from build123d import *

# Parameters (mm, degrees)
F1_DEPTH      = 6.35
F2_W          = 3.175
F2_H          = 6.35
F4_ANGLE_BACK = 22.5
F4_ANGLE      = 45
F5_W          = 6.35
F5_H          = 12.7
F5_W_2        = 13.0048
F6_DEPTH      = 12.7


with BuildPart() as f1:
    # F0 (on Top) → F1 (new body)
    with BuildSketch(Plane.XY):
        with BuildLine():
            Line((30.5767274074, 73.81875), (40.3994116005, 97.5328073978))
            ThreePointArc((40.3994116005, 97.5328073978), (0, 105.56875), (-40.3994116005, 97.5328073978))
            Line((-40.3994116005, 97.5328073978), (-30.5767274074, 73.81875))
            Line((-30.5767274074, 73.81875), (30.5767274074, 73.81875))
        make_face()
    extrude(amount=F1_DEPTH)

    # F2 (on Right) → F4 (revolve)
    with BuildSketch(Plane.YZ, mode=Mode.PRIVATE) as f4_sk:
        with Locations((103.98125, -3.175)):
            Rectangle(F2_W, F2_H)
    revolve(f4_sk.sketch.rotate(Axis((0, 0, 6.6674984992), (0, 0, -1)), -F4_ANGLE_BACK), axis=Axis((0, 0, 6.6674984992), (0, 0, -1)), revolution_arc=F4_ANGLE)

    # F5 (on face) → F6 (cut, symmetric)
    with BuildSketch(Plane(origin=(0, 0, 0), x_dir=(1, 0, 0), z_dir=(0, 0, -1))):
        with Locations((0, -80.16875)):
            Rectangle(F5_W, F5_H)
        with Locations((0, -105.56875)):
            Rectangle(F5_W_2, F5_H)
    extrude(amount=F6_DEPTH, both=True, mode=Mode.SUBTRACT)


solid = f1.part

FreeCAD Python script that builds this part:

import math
import FreeCAD as App
import Part
import Sketcher

V = App.Vector
Q = App.Units.Quantity

doc = App.newDocument("Part")
body = doc.addObject("PartDesign::Body", "Body")

# Sketch on XY plane
sketch1 = doc.addObject("Sketcher::SketchObject", "Sketch")
body.addObject(sketch1)
sketch1.AttachmentSupport = (doc.XY_Plane, [""])
sketch1.MapMode = "FlatFace"
sketch1.addGeometry(Part.LineSegment(V(31, 74, 0), V(40, 98, 0)), False)
sketch1.addGeometry(Part.ArcOfCircle(Part.Circle(V(0, 0, 0), V(0, 0, 1), 106), math.radians(67), math.radians(113)), False)
sketch1.addGeometry(Part.LineSegment(V(-40, 98, 0), V(-31, 74, 0)), False)
sketch1.addGeometry(Part.LineSegment(V(-31, 74, 0), V(31, 74, 0)), False)
sketch1.addConstraint(Sketcher.Constraint("Coincident", 0, 2, 1, 1))
sketch1.addConstraint(Sketcher.Constraint("Coincident", 1, 2, 2, 1))
sketch1.addConstraint(Sketcher.Constraint("Coincident", 2, 2, 3, 1))
sketch1.addConstraint(Sketcher.Constraint("Coincident", 3, 2, 0, 1))
sketch1.addConstraint(Sketcher.Constraint("Horizontal", 3))
sketch1.addConstraint(Sketcher.Constraint("Coincident", 1, 3, -1, 1))
sketch1.addConstraint(Sketcher.Constraint("Horizontal", 0, 2, 1, 2))
sketch1.addConstraint(Sketcher.Constraint("Equal", 0, 2))
sketch1.addConstraint(Sketcher.Constraint("Radius", 1, Q("4.15625 in")))
sketch1.addConstraint(Sketcher.Constraint("Angle", 0, Q("67.5 deg")))
sketch1.addConstraint(Sketcher.Constraint("DistanceY", -1, 1, 2, 2, Q("2.90625 in")))
sketch1.addConstraint(Sketcher.Constraint("Distance", 0, 25.667911))
pad1 = doc.addObject("PartDesign::Pad", "Pad")
body.addObject(pad1)
pad1.Profile = sketch1
pad1.Length = Q("0.25 in")

# Sketch on an angled plane
sketch2 = doc.addObject("Sketcher::SketchObject", "Sketch001")
body.addObject(sketch2)
sketch2.Placement = App.Placement(V(0, 0, 0), App.Rotation(V(-0.382683432, 0.923879533, 0), V(0, 0, 1.000000001), V(0.923879533, 0.382683432, 0), "ZXY"))
sketch2.addGeometry(Part.LineSegment(V(102.4, 0, 0), V(102.4, -6.4, 0)), False)
sketch2.addGeometry(Part.LineSegment(V(102.4, -6.4, 0), V(105.6, -6.4, 0)), False)
sketch2.addGeometry(Part.LineSegment(V(105.6, -6.4, 0), V(105.6, 0, 0)), False)
sketch2.addGeometry(Part.LineSegment(V(105.6, 0, 0), V(102.4, 0, 0)), False)
sketch2.addConstraint(Sketcher.Constraint("Coincident", 0, 2, 1, 1))
sketch2.addConstraint(Sketcher.Constraint("Coincident", 1, 2, 2, 1))
sketch2.addConstraint(Sketcher.Constraint("Coincident", 2, 2, 3, 1))
sketch2.addConstraint(Sketcher.Constraint("Coincident", 3, 2, 0, 1))
sketch2.addConstraint(Sketcher.Constraint("Vertical", 0))
sketch2.addConstraint(Sketcher.Constraint("Horizontal", 1))
sketch2.addConstraint(Sketcher.Constraint("Vertical", 2))
sketch2.addConstraint(Sketcher.Constraint("Horizontal", 3))
sketch2.addConstraint(Sketcher.Constraint("PointOnObject", 2, 2, -1))
sketch2.addConstraint(Sketcher.Constraint("DistanceY", 0, 2, 0, 1, Q("0.25 in")))
sketch2.addConstraint(Sketcher.Constraint("DistanceX", 1, 1, 1, 2, Q("0.125 in")))
sketch2.addConstraint(Sketcher.Constraint("DistanceX", -1, 1, 0, 2, Q("4.03125 in")))
revolution = doc.addObject("PartDesign::Revolution", "Revolution")
body.addObject(revolution)
revolution.Profile = sketch2
revolution.ReferenceAxis = (sketch2, ["V_Axis"])
revolution.Angle = 45
revolution.Reversed = True

# Sketch on XY plane
sketch3 = doc.addObject("Sketcher::SketchObject", "Sketch002")
body.addObject(sketch3)
sketch3.AttachmentSupport = (doc.XY_Plane, [""])
sketch3.MapMode = "FlatFace"
sketch3.addGeometry(Part.LineSegment(V(-3, 74, 0), V(-3, 87, 0)), False)
sketch3.addGeometry(Part.LineSegment(V(-3, 87, 0), V(3, 87, 0)), False)
sketch3.addGeometry(Part.LineSegment(V(3, 87, 0), V(3, 74, 0)), False)
sketch3.addGeometry(Part.LineSegment(V(3, 74, 0), V(-3, 74, 0)), False)
sketch3.addGeometry(Part.LineSegment(V(-7, 99, 0), V(-7, 112, 0)), False)
sketch3.addGeometry(Part.LineSegment(V(-7, 112, 0), V(7, 112, 0)), False)
sketch3.addGeometry(Part.LineSegment(V(7, 112, 0), V(7, 99, 0)), False)
sketch3.addGeometry(Part.LineSegment(V(7, 99, 0), V(-7, 99, 0)), False)
sketch3.addConstraint(Sketcher.Constraint("Coincident", 0, 2, 1, 1))
sketch3.addConstraint(Sketcher.Constraint("Coincident", 1, 2, 2, 1))
sketch3.addConstraint(Sketcher.Constraint("Coincident", 2, 2, 3, 1))
sketch3.addConstraint(Sketcher.Constraint("Coincident", 3, 2, 0, 1))
sketch3.addConstraint(Sketcher.Constraint("Coincident", 4, 2, 5, 1))
sketch3.addConstraint(Sketcher.Constraint("Coincident", 5, 2, 6, 1))
sketch3.addConstraint(Sketcher.Constraint("Coincident", 6, 2, 7, 1))
sketch3.addConstraint(Sketcher.Constraint("Coincident", 7, 2, 4, 1))
sketch3.addConstraint(Sketcher.Constraint("Vertical", 0))
sketch3.addConstraint(Sketcher.Constraint("Horizontal", 1))
sketch3.addConstraint(Sketcher.Constraint("Vertical", 2))
sketch3.addConstraint(Sketcher.Constraint("Horizontal", 3))
sketch3.addConstraint(Sketcher.Constraint("Vertical", 4))
sketch3.addConstraint(Sketcher.Constraint("Horizontal", 5))
sketch3.addConstraint(Sketcher.Constraint("Vertical", 6))
sketch3.addConstraint(Sketcher.Constraint("Horizontal", 7))
sketch3.addConstraint(Sketcher.Constraint("Equal", 2, 4))
sketch3.addConstraint(Sketcher.Constraint("DistanceY", 0, 1, 0, 2, Q("0.5 in")))
sketch3.addConstraint(Sketcher.Constraint("DistanceY", 0, 2, 4, 2, Q("1 in")))
sketch3.addConstraint(Sketcher.Constraint("DistanceX", 1, 1, 1, 2, Q("0.25 in")))
sketch3.addConstraint(Sketcher.Constraint("DistanceX", 5, 1, 5, 2, Q("0.512 in")))
sketch3.addConstraint(Sketcher.Constraint("DistanceX", 0, 2, -1, 1, Q("0.125 in")))
sketch3.addConstraint(Sketcher.Constraint("DistanceY", -1, 1, 0, 2, Q("3.40625 in")))
sketch3.addConstraint(Sketcher.Constraint("DistanceX", 4, 2, -1, 1, Q("0.256 in")))
pocket1 = doc.addObject("PartDesign::Pocket", "Pocket")
body.addObject(pocket1)
pocket1.Profile = sketch3
pocket1.Length = Q("1 in")
pocket1.Midplane = True

doc.recompute()
